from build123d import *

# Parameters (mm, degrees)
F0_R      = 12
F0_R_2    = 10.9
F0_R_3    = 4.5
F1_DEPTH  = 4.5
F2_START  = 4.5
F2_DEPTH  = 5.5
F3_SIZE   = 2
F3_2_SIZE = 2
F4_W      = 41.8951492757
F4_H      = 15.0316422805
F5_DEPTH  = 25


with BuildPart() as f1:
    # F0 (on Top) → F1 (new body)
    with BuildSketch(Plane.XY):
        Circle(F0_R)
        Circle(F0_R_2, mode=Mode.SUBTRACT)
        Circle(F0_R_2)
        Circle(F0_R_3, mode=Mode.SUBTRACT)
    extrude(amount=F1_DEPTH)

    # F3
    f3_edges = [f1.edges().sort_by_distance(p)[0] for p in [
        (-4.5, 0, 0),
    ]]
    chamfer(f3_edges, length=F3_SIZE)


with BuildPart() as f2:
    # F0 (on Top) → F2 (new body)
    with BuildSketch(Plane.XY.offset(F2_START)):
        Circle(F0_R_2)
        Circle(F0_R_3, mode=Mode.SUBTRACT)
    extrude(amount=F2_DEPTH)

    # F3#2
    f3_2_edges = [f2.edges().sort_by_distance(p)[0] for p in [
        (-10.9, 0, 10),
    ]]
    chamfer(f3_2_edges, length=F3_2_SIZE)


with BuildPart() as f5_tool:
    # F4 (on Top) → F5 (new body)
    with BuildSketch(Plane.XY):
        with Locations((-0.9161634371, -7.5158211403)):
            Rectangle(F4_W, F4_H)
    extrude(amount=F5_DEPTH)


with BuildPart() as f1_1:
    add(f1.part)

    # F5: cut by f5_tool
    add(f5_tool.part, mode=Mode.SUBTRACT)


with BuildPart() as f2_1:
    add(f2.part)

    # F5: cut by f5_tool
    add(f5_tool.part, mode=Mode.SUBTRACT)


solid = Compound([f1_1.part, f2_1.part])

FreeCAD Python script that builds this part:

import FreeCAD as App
import Part
import Sketcher
from FreeCAD import Vector
Q = App.Units.Quantity


def edges_at(feature, points):
    """Names of the edges that pass closest to the given points."""
    edges = feature.Shape.Edges
    near = lambda p: min(range(len(edges)), key=lambda i: edges[i].distToShape(Part.Vertex(*p))[0])
    return sorted({f"Edge{near(p) + 1}" for p in points})


def add_polygon(sketch, points):
    """Adds a closed chain of lines whose ends are joined by coincident constraints."""
    first, n = sketch.GeometryCount, len(points)
    for a, b in zip(points, points[1:] + points[:1]):
        sketch.addGeometry(Part.LineSegment(App.Vector(*a, 0), App.Vector(*b, 0)), False)
    for i in range(n):
        sketch.addConstraint(Sketcher.Constraint("Coincident", first + i, 2, first + (i + 1) % n, 1))

doc = App.newDocument("Part")
body = doc.addObject("PartDesign::Body", "Body")

# Sketch on XY plane
sketch1 = body.newObject("Sketcher::SketchObject", "Sketch")
sketch1.AttachmentSupport = (doc.getObject("XY_Plane"), [""])
sketch1.MapMode = "FlatFace"
sketch1.addGeometry([
    Part.Circle(Vector(0, 0, 0), Vector(0, 0, 1), 12),
    Part.Circle(Vector(0, 0, 0), Vector(0, 0, 1), 4.5),
], False)
sketch1.addConstraint([
    Sketcher.Constraint("Coincident", 0, 3, -1, 1),
    Sketcher.Constraint("Coincident", 1, 3, -1, 1),
    Sketcher.Constraint("Diameter", 0, Q("24 mm")),
    Sketcher.Constraint("Diameter", 1, Q("9 mm")),
])
pad1 = body.newObject("PartDesign::Pad", "Pad")
pad1.Profile = sketch1
pad1.Length = 4.5
doc.recompute()

chamfer = body.newObject("PartDesign::Chamfer", "Chamfer")
chamfer.Base = (pad1, edges_at(pad1, [(-4.5, 0, 0)]))
chamfer.Size = 2
body2 = doc.addObject("PartDesign::Body", "Body001")

# Sketch on XY plane
sketch2 = body2.newObject("Sketcher::SketchObject", "Sketch001")
sketch2.AttachmentSupport = (doc.getObject("XY_Plane001"), [""])
sketch2.MapMode = "FlatFace"
sketch2.AttachmentOffset = App.Placement(Vector(0, 0, 4.5), App.Rotation())
sketch2.addGeometry([
    Part.Circle(Vector(0, 0, 0), Vector(0, 0, 1), 10.9),
    Part.Circle(Vector(0, 0, 0), Vector(0, 0, 1), 4.5),
], False)
sketch2.addConstraint([
    Sketcher.Constraint("Coincident", 0, 3, -1, 1),
    Sketcher.Constraint("Coincident", 1, 3, -1, 1),
    Sketcher.Constraint("Diameter", 1, Q("9 mm")),
    Sketcher.Constraint("Diameter", 0, Q("21.8 mm")),
])
pad2 = body2.newObject("PartDesign::Pad", "Pad001")
pad2.Profile = sketch2
pad2.Length = 5.5
doc.recompute()

chamfer2 = body2.newObject("PartDesign::Chamfer", "Chamfer001")
chamfer2.Base = (pad2, edges_at(pad2, [(-10.9, 0, 10)]))
chamfer2.Size = 2
body3 = doc.addObject("PartDesign::Body", "Body002")

# Sketch on XY plane
sketch3 = body3.newObject("Sketcher::SketchObject", "Sketch002")
sketch3.AttachmentSupport = (doc.getObject("XY_Plane002"), [""])
sketch3.MapMode = "FlatFace"
add_polygon(sketch3, [(-22, 0), (-22, -15), (20, -15), (20, 0)])  # lines 0-3
sketch3.addConstraint([
    Sketcher.Constraint("Vertical", 0),
    Sketcher.Constraint("Horizontal", 1),
    Sketcher.Constraint("Vertical", 2),
    Sketcher.Constraint("Horizontal", 3),
    Sketcher.Constraint("PointOnObject", 2, 2, -1),
    Sketcher.Constraint("DistanceX", 1, 1, 1, 2, Q("41.895149 mm")),
    Sketcher.Constraint("DistanceY", 0, 2, 0, 1, Q("15.031642 mm")),
    Sketcher.Constraint("DistanceX", 0, 2, -1, 1, Q("21.863738 mm")),
])
pad3 = body3.newObject("PartDesign::Pad", "Pad002")
pad3.Profile = sketch3
pad3.Length = 25
doc.recompute()

body4 = doc.addObject("PartDesign::Body", "Body003")
body4.BaseFeature = body3
boolean = body.newObject("PartDesign::Boolean", "Boolean")
boolean.Type = "Cut"
boolean.addObjects([body4])
doc.recompute()

boolean2 = body2.newObject("PartDesign::Boolean", "Boolean001")
boolean2.Type = "Cut"
boolean2.addObjects([body3])

doc.recompute()
